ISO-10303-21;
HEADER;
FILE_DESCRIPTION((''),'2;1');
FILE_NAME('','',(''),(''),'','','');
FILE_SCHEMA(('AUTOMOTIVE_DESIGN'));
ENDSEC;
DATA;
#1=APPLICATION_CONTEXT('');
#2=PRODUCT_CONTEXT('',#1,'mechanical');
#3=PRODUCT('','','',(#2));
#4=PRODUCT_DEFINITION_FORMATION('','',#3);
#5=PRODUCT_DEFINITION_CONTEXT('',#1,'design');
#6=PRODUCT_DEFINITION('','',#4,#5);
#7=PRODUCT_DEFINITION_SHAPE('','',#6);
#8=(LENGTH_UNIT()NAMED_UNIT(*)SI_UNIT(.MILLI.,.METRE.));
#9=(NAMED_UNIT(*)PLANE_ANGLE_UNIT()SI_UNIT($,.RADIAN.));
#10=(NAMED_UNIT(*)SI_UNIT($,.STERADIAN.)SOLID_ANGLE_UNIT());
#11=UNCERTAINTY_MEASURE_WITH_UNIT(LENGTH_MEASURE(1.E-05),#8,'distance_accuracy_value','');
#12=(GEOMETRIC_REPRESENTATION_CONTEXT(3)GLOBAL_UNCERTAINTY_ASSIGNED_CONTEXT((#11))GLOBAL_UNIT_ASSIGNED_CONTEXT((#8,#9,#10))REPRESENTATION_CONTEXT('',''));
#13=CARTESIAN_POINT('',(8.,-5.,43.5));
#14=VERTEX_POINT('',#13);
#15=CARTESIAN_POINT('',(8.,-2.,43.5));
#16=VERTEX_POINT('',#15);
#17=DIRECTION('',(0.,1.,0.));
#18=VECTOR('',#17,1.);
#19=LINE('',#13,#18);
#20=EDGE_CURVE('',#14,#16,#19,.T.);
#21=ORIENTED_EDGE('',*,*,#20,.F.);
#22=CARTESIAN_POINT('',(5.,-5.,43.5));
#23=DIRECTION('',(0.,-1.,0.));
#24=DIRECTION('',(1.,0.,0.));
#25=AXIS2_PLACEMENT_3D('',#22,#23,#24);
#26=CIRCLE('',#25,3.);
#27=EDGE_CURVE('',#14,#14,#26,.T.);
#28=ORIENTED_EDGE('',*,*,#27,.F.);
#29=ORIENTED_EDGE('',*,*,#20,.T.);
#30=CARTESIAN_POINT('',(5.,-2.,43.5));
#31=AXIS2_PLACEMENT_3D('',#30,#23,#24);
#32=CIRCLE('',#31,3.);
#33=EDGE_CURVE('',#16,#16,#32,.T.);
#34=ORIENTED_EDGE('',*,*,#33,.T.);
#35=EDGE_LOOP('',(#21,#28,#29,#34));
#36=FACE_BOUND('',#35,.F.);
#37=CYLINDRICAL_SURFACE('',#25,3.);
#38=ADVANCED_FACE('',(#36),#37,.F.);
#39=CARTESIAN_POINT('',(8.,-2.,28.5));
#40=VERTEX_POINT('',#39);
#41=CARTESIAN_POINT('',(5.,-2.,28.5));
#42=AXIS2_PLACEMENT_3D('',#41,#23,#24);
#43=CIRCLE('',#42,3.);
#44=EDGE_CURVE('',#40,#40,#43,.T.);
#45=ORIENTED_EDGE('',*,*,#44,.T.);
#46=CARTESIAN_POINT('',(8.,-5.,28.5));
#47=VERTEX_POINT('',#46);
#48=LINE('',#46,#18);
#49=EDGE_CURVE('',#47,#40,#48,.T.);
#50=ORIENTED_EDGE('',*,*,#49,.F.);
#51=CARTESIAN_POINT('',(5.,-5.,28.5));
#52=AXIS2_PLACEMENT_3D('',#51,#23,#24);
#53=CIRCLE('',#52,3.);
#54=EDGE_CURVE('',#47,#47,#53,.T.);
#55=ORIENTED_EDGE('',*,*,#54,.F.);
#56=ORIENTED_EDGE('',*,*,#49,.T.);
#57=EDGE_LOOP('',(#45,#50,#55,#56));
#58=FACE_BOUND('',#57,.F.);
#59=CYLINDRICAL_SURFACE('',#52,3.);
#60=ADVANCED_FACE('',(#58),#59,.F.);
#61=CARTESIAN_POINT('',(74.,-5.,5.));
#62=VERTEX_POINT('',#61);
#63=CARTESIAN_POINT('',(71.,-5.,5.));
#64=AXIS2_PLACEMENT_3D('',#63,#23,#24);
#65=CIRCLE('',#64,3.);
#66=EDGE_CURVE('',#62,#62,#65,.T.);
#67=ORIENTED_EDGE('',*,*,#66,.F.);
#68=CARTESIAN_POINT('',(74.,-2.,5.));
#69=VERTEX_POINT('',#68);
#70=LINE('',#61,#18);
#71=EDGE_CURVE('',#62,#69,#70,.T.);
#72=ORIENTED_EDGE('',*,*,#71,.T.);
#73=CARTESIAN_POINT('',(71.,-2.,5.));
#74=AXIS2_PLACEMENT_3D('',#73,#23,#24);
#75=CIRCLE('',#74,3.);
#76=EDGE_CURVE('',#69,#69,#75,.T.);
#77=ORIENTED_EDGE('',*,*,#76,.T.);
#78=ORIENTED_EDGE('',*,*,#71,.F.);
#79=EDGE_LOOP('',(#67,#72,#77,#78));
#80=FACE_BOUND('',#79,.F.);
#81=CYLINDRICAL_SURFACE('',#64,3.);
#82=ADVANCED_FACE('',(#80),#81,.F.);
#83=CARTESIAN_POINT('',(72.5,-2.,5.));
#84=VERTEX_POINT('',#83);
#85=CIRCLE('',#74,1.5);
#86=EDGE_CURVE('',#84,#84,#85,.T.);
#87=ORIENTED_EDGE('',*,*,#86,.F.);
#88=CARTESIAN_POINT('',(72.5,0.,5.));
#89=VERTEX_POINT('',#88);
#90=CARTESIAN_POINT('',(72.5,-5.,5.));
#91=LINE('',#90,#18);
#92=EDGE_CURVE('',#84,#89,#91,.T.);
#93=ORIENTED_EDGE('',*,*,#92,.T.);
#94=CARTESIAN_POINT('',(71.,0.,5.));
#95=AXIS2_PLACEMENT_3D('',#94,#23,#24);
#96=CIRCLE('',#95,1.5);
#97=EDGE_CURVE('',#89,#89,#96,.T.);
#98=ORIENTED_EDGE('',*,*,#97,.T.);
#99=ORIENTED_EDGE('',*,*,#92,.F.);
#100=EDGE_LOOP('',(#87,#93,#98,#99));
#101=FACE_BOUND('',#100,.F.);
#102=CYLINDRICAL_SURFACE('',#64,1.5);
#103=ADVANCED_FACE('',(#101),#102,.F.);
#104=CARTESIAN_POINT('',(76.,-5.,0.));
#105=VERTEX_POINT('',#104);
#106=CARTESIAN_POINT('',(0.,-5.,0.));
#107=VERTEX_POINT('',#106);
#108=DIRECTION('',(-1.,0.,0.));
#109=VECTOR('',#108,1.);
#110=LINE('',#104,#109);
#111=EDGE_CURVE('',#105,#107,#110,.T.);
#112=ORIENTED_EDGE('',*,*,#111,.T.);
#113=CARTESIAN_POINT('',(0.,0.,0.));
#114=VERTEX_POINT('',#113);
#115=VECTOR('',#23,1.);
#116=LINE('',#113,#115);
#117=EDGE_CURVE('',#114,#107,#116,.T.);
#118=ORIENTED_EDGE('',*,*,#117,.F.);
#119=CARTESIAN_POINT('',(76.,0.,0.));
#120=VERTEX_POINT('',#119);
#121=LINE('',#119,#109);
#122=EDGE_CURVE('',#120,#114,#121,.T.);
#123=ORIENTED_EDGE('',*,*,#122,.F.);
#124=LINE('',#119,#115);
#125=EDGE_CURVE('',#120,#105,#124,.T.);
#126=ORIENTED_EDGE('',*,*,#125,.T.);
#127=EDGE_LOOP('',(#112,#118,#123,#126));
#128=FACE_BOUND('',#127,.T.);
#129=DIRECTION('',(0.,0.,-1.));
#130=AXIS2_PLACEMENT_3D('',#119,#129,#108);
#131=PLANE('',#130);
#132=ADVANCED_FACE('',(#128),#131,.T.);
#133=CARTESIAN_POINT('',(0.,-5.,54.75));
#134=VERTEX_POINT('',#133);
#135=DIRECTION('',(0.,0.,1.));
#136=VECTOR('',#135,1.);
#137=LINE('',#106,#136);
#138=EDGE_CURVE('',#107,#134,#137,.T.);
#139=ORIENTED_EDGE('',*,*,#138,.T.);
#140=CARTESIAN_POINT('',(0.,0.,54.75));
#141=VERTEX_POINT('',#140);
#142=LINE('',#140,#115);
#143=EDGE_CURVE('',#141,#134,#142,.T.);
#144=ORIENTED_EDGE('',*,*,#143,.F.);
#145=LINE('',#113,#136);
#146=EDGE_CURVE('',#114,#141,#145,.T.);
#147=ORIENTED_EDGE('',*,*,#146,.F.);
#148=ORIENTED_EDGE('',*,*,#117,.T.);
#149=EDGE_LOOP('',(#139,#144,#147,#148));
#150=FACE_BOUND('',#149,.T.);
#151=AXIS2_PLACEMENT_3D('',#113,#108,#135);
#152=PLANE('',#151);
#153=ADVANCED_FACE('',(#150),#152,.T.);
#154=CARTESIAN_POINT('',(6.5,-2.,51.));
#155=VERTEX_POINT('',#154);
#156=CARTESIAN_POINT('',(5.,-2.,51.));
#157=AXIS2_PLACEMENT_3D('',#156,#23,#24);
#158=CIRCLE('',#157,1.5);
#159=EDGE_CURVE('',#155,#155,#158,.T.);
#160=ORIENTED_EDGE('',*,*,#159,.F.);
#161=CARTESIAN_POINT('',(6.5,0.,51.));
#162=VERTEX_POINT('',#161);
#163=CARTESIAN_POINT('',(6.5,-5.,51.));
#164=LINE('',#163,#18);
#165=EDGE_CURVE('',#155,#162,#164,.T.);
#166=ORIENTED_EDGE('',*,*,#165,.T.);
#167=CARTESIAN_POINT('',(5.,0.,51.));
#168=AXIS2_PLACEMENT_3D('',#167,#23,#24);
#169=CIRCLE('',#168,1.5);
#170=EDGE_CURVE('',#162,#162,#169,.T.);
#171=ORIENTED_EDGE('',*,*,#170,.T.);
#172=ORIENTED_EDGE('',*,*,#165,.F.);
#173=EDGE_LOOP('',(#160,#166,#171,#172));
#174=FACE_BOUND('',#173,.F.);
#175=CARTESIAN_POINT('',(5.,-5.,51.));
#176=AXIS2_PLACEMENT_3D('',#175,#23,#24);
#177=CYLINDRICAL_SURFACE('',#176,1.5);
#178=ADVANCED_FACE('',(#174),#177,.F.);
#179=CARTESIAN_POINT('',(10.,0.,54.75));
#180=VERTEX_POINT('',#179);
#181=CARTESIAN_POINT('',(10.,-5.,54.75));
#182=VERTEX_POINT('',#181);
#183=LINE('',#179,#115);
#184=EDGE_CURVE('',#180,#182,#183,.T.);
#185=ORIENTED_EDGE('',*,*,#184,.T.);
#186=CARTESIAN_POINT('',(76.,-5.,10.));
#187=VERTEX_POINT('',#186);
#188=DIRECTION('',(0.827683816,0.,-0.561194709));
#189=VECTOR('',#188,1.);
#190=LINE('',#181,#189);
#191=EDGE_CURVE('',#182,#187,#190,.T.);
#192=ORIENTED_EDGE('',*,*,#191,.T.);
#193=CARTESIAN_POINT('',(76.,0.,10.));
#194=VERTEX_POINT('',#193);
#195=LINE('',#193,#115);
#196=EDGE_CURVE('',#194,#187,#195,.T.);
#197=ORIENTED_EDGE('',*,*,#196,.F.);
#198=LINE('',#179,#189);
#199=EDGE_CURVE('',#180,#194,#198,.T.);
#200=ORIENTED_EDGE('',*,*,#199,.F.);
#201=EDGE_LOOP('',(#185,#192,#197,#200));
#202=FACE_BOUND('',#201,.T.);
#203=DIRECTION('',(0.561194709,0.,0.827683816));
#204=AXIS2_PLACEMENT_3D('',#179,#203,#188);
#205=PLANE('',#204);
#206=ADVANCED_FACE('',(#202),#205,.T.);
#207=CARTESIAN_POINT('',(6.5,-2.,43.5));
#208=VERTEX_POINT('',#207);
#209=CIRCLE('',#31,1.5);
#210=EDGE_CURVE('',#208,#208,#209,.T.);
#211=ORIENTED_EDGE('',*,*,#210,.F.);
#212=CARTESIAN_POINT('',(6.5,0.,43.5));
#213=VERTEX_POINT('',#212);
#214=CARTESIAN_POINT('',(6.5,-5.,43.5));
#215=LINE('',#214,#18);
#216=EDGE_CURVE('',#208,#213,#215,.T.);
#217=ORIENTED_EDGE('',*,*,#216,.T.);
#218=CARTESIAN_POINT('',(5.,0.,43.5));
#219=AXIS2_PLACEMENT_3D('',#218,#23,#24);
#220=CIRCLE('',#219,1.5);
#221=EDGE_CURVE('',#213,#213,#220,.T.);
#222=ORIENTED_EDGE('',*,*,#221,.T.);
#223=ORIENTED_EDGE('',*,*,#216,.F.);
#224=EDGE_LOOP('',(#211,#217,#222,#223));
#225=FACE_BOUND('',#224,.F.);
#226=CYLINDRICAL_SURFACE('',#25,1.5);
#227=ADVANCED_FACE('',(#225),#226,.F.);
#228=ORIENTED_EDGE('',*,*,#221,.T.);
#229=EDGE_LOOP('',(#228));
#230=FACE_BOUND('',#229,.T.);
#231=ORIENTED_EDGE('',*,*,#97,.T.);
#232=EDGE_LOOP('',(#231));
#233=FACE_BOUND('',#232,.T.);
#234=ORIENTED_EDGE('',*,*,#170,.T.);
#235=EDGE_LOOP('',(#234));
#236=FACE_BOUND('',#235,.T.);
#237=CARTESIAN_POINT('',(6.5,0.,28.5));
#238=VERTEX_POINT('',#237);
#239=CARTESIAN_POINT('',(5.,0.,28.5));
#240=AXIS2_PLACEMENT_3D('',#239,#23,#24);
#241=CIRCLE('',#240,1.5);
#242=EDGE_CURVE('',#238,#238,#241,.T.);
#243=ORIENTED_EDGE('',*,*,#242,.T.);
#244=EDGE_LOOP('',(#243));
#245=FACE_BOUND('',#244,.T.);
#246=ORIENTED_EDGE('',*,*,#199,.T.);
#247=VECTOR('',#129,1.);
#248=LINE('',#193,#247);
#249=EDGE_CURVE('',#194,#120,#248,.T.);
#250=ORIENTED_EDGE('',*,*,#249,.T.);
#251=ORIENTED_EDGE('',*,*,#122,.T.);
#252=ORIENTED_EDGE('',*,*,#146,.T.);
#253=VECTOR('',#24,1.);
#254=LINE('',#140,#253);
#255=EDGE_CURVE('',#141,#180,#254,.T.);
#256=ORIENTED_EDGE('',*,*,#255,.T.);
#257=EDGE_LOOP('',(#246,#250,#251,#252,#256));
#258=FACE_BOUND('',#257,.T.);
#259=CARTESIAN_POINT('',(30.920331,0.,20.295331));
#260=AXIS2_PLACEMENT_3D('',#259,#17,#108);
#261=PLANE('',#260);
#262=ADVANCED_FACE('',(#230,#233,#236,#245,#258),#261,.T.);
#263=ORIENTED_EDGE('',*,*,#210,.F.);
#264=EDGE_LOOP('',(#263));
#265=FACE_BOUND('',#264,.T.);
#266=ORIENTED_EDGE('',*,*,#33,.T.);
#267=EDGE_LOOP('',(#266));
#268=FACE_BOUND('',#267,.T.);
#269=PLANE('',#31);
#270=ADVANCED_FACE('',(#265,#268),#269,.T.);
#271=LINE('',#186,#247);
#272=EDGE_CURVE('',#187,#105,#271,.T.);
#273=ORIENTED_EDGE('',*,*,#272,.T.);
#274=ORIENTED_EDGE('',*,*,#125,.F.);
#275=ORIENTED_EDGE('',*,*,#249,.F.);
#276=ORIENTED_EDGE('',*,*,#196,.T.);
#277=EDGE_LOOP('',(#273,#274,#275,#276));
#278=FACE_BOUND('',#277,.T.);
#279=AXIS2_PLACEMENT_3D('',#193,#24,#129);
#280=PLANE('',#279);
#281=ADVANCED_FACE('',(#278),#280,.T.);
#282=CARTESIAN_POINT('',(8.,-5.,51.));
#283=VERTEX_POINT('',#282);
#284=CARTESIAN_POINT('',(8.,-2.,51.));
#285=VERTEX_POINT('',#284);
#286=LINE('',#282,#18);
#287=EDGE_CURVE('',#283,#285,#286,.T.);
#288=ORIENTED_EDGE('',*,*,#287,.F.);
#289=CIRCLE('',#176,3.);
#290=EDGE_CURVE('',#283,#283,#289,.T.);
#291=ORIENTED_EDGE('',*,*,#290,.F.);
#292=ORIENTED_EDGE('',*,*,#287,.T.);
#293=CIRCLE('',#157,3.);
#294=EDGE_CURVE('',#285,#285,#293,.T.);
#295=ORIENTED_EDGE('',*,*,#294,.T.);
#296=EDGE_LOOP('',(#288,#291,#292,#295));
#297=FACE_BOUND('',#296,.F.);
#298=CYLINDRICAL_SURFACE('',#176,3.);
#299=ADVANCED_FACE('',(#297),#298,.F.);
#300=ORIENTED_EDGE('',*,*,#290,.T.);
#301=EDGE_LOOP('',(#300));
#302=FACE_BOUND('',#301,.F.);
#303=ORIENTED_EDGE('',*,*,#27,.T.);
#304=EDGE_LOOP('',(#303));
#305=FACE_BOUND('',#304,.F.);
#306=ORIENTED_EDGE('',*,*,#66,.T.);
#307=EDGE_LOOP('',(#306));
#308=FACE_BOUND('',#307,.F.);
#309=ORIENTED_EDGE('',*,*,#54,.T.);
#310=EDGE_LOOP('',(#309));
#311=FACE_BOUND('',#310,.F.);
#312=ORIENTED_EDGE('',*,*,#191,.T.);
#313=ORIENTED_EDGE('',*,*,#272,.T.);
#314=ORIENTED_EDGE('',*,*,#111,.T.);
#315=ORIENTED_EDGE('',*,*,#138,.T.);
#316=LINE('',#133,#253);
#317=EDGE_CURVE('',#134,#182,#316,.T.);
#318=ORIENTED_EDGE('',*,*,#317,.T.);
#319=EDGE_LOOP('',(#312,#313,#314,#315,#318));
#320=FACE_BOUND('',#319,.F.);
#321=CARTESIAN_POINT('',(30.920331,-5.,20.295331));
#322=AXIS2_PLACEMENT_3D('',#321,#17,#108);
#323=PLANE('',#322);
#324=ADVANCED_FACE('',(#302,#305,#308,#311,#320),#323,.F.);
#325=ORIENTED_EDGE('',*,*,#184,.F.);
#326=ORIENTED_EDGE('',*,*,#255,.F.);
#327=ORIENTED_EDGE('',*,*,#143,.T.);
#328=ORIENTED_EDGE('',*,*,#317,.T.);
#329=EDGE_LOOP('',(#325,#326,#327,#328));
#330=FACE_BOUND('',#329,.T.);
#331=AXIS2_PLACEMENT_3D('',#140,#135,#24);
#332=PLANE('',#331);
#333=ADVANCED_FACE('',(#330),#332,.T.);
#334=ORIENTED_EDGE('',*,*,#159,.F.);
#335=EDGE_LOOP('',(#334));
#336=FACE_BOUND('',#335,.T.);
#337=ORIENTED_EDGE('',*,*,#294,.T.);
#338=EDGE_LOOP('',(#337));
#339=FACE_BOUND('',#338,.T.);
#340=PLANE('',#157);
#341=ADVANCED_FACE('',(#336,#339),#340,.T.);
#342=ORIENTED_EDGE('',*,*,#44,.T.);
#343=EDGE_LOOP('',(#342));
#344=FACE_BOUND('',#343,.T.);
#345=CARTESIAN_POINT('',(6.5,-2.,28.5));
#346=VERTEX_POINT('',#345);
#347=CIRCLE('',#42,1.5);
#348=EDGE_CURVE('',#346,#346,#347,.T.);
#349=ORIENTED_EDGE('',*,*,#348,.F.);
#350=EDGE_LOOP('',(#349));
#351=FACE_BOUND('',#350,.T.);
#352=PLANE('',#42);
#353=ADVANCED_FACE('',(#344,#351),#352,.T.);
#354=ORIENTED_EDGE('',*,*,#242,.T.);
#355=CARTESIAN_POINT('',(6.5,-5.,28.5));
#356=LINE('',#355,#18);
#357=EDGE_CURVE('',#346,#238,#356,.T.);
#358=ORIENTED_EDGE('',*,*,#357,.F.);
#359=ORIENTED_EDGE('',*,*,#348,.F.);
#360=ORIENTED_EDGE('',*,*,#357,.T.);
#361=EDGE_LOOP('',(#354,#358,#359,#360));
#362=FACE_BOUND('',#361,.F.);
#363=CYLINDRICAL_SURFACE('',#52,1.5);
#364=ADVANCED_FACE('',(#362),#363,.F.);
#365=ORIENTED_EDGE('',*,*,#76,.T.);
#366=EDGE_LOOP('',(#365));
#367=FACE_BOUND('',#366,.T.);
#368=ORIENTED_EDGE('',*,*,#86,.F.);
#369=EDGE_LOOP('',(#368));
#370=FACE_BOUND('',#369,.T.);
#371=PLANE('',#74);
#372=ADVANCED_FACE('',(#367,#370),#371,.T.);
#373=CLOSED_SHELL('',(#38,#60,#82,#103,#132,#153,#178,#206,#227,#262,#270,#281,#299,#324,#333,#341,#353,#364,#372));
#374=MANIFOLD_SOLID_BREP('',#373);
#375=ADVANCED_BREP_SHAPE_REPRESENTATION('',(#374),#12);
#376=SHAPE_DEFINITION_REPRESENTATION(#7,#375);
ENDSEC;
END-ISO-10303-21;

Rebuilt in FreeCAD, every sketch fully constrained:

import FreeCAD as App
import Part
import Sketcher

doc = App.newDocument("Part")
params = doc.addObject("Spreadsheet::Sheet", "Params")
for row, (alias, value) in enumerate([
    ("sketch1_width", "76 mm"),
    ("sketch1_width2", "10 mm"),
    ("sketch1_height", "54.75 mm"),
    ("pad1_length", "5 mm"),
    ("sketch2_diameter", "3 mm"),
    ("sketch3_diameter", "6 mm"),
    ("pocket2_length", "3 mm"),
], start=1):
    params.set(f"A{row}", alias)
    params.set(f"B{row}", "=" + value)
    params.setAlias(f"B{row}", alias)

body = doc.addObject("PartDesign::Body", "Body")

sketch1 = body.newObject("Sketcher::SketchObject", "Sketch")
sketch1.AttachmentSupport = (doc.getObject("XZ_Plane"), [""])
sketch1.MapMode = "FlatFace"
sketch1.addGeometry([
    Part.LineSegment(App.Vector(0, 55, 0), App.Vector(0, 0, 0)),
    Part.LineSegment(App.Vector(0, 0, 0), App.Vector(76, 0, 0)),
    Part.LineSegment(App.Vector(76, 0, 0), App.Vector(76, 10, 0)),
    Part.LineSegment(App.Vector(76, 10, 0), App.Vector(10, 55, 0)),
    Part.LineSegment(App.Vector(10, 55, 0), App.Vector(0, 55, 0)),
], False)
sketch1.addConstraint([
    Sketcher.Constraint("Coincident", 0, 2, 1, 1),
    Sketcher.Constraint("Coincident", 1, 2, 2, 1),
    Sketcher.Constraint("Coincident", 2, 2, 3, 1),
    Sketcher.Constraint("Coincident", 3, 2, 4, 1),
    Sketcher.Constraint("Coincident", 4, 2, 0, 1),
    Sketcher.Constraint("Vertical", 0),
    Sketcher.Constraint("Horizontal", 1),
    Sketcher.Constraint("Vertical", 2),
    Sketcher.Constraint("Horizontal", 4),
    Sketcher.Constraint("Coincident", 0, 2, -1, 1),
    Sketcher.Constraint("Equal", 4, 2),
    Sketcher.Constraint("DistanceX", 1, 1, 1, 2, 76.0),
    Sketcher.Constraint("DistanceX", 4, 2, 4, 1, 10.0),
    Sketcher.Constraint("DistanceY", 0, 2, 0, 1, 54.75),
])
sketch1.setExpression("Constraints[11]", "Params.sketch1_width")
sketch1.setExpression("Constraints[12]", "Params.sketch1_width2")
sketch1.setExpression("Constraints[13]", "Params.sketch1_height")
pad1 = body.newObject("PartDesign::Pad", "Pad")
pad1.Profile = sketch1
pad1.setExpression("Length", "Params.pad1_length")

sketch2 = body.newObject("Sketcher::SketchObject", "Sketch001")
sketch2.AttachmentSupport = (doc.getObject("XZ_Plane"), [""])
sketch2.MapMode = "FlatFace"
sketch2.AttachmentOffset = App.Placement(App.Vector(0, 0, 5), App.Rotation())
sketch2.addGeometry([
    Part.Circle(App.Vector(5, 51, 0), App.Vector(0, 0, 1), 1.5),
    Part.Circle(App.Vector(5, 43.5, 0), App.Vector(0, 0, 1), 1.5),
    Part.Circle(App.Vector(5, 28.5, 0), App.Vector(0, 0, 1), 1.5),
    Part.Circle(App.Vector(71, 5, 0), App.Vector(0, 0, 1), 1.5),
], False)
sketch2.addConstraint([
    Sketcher.Constraint("Equal", 0, 1),
    Sketcher.Constraint("Equal", 1, 2),
    Sketcher.Constraint("Equal", 2, 3),
    Sketcher.Constraint("Vertical", 0, 3, 1, 3),
    Sketcher.Constraint("Vertical", 1, 3, 2, 3),
    Sketcher.Constraint("Diameter", 0, 3.0),
    Sketcher.Constraint("DistanceX", -1, 1, 0, 3, 5.0),
    Sketcher.Constraint("DistanceY", -1, 1, 0, 3, 51.0),
    Sketcher.Constraint("DistanceX", -1, 1, 3, 3, 71.0),
    Sketcher.Constraint("DistanceY", -1, 1, 3, 3, 5.0),
    Sketcher.Constraint("DistanceY", 2, 3, 1, 3, 15.0),
    Sketcher.Constraint("DistanceY", -1, 1, 1, 3, 43.5),
])
sketch2.setExpression("Constraints[5]", "Params.sketch2_diameter")
pocket1 = body.newObject("PartDesign::Pocket", "Pocket")
pocket1.Profile = sketch2
pocket1.Type = "ThroughAll"

sketch3 = body.newObject("Sketcher::SketchObject", "Sketch002")
sketch3.AttachmentSupport = (doc.getObject("XZ_Plane"), [""])
sketch3.MapMode = "FlatFace"
sketch3.AttachmentOffset = App.Placement(App.Vector(0, 0, 5), App.Rotation())
sketch3.addGeometry([
    Part.Circle(App.Vector(5, 51, 0), App.Vector(0, 0, 1), 3),
    Part.Circle(App.Vector(5, 43.5, 0), App.Vector(0, 0, 1), 3),
    Part.Circle(App.Vector(5, 28.5, 0), App.Vector(0, 0, 1), 3),
    Part.Circle(App.Vector(71, 5, 0), App.Vector(0, 0, 1), 3),
], False)
sketch3.addConstraint([
    Sketcher.Constraint("Equal", 0, 1),
    Sketcher.Constraint("Equal", 1, 2),
    Sketcher.Constraint("Equal", 2, 3),
    Sketcher.Constraint("Vertical", 0, 3, 1, 3),
    Sketcher.Constraint("Vertical", 1, 3, 2, 3),
    Sketcher.Constraint("Diameter", 0, 6.0),
    Sketcher.Constraint("DistanceX", -1, 1, 0, 3, 5.0),
    Sketcher.Constraint("DistanceY", -1, 1, 0, 3, 51.0),
    Sketcher.Constraint("DistanceX", -1, 1, 3, 3, 71.0),
    Sketcher.Constraint("DistanceY", -1, 1, 3, 3, 5.0),
    Sketcher.Constraint("DistanceY", 2, 3, 1, 3, 15.0),
    Sketcher.Constraint("DistanceY", -1, 1, 1, 3, 43.5),
])
sketch3.setExpression("Constraints[5]", "Params.sketch3_diameter")
pocket2 = body.newObject("PartDesign::Pocket", "Pocket001")
pocket2.Profile = sketch3
pocket2.setExpression("Length", "Params.pocket2_length")

doc.recompute()
